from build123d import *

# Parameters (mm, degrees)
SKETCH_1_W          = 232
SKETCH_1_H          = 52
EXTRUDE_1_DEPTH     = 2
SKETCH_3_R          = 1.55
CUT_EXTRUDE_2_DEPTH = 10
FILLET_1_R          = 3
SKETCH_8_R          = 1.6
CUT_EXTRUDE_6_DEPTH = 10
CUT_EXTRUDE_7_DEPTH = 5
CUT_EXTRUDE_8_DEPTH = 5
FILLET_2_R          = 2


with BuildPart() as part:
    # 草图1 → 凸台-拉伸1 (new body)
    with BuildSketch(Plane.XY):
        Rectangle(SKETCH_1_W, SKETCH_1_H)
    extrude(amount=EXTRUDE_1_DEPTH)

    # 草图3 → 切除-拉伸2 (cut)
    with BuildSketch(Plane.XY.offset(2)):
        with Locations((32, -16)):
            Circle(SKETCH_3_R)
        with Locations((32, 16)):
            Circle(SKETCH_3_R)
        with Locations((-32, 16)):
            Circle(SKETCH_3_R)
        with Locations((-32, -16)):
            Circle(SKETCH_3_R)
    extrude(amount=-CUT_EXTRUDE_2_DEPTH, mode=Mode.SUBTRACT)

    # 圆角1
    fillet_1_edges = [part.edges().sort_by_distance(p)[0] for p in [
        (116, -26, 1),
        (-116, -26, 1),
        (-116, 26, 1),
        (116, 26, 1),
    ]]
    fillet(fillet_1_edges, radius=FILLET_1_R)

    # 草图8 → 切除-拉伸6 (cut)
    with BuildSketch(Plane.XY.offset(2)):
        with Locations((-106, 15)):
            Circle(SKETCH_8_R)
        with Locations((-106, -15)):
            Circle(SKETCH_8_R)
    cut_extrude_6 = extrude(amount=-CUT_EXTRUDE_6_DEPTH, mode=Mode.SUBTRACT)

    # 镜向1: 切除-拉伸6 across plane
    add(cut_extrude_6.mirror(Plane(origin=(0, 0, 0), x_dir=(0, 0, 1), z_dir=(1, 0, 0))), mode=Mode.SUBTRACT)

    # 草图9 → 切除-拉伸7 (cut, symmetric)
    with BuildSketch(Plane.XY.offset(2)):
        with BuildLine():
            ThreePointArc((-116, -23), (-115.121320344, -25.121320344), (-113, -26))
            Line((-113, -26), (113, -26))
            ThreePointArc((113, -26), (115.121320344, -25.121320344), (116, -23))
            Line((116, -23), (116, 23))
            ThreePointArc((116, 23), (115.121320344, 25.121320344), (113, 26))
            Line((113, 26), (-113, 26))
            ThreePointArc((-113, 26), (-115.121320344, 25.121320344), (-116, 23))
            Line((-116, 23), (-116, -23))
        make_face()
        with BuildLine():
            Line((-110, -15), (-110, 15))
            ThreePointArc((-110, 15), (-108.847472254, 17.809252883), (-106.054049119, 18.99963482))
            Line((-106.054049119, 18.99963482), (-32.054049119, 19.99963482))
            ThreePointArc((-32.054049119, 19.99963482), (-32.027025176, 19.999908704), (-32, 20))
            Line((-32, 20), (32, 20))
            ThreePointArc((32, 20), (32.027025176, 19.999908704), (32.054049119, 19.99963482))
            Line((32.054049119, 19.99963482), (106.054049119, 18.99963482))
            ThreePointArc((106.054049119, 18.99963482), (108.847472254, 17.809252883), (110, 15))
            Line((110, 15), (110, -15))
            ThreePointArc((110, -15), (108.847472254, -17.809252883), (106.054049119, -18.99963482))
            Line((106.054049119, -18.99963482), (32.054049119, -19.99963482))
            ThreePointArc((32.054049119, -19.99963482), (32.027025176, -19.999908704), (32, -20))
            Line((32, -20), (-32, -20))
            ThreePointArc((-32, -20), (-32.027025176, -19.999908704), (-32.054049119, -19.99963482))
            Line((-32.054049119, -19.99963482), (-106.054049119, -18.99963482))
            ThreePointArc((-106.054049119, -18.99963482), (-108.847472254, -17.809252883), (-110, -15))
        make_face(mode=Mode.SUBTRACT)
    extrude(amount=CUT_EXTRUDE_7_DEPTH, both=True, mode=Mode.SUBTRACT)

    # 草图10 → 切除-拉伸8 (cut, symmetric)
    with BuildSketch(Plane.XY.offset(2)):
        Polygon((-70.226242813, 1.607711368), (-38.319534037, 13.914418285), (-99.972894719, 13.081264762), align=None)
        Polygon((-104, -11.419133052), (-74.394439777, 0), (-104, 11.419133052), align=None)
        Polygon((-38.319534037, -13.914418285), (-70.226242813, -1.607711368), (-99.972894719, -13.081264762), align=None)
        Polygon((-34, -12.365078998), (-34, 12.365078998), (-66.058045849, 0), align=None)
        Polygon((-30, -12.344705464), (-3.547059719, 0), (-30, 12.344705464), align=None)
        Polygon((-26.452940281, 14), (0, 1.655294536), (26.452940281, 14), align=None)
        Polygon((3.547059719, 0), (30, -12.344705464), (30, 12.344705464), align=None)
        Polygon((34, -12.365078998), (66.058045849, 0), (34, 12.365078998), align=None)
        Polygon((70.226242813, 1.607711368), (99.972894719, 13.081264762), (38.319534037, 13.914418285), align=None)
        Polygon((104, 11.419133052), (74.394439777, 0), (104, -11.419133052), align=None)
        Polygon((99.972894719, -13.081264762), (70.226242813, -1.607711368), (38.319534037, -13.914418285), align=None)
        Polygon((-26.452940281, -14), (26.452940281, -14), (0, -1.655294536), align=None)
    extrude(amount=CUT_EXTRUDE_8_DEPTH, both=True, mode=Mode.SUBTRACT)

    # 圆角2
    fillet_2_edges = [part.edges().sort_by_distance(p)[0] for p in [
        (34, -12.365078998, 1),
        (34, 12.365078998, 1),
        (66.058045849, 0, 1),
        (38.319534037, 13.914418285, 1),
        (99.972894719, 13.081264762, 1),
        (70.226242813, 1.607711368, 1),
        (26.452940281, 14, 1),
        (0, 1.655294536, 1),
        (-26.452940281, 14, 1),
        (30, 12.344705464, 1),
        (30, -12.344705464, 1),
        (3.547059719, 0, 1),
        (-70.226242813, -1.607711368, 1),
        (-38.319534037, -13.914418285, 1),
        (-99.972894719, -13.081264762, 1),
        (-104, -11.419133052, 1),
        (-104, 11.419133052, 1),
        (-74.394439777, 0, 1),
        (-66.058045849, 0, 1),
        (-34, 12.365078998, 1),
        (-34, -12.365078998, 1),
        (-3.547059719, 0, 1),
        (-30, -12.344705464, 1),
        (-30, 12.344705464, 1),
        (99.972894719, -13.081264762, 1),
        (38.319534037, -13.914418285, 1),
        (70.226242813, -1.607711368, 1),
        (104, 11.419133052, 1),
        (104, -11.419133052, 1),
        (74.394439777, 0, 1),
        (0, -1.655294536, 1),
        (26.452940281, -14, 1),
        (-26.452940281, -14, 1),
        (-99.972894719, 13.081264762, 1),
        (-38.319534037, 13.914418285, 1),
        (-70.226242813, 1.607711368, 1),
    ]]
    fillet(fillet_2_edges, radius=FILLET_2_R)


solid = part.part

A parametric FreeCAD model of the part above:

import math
import FreeCAD as App
import Part
import Sketcher

V = App.Vector
Q = App.Units.Quantity


def edges_at(feature, points):
    """Names of the edges that pass closest to the given points."""
    edges = feature.Shape.Edges
    near = lambda p: min(range(len(edges)), key=lambda i: edges[i].distToShape(Part.Vertex(*p))[0])
    return sorted({f"Edge{near(p) + 1}" for p in points})

doc = App.newDocument("Part")
params = doc.addObject("Spreadsheet::Sheet", "Params")
for row, (alias, value) in enumerate([
    ("sketch1_width", "232 mm"),
    ("sketch1_height", "52 mm"),
    ("pad1_length", "2 mm"),
    ("sketch2_diameter", "3.1 mm"),
    ("pocket1_length", "10 mm"),
    ("fillet_radius", "3 mm"),
    ("sketch3_diameter", "3.2 mm"),
    ("pocket2_length", "10 mm"),
    ("sketch4_radius", "3 mm"),
    ("sketch4_radius2", "4 mm"),
    ("sketch4_width", "226 mm"),
    ("sketch4_width2", "64 mm"),
    ("sketch4_height", "46 mm"),
    ("pocket3_length", "10 mm"),
    ("pocket4_length", "10 mm"),
    ("fillet2_radius", "2 mm"),
], start=1):
    params.set(f"A{row}", alias)
    params.set(f"B{row}", "=" + value)
    params.setAlias(f"B{row}", alias)

body = doc.addObject("PartDesign::Body", "Body")

# Sketch on XY plane
sketch1 = body.newObject("Sketcher::SketchObject", "Sketch")
sketch1.AttachmentSupport = (doc.getObject("XY_Plane"), [""])
sketch1.MapMode = "FlatFace"
sketch1.addGeometry(Part.LineSegment(V(-116, 26, 0), V(-116, -26, 0)), False)
sketch1.addGeometry(Part.LineSegment(V(-116, -26, 0), V(116, -26, 0)), False)
sketch1.addGeometry(Part.LineSegment(V(116, -26, 0), V(116, 26, 0)), False)
sketch1.addGeometry(Part.LineSegment(V(116, 26, 0), V(-116, 26, 0)), False)
sketch1.addConstraint(Sketcher.Constraint("Coincident", 0, 2, 1, 1))
sketch1.addConstraint(Sketcher.Constraint("Coincident", 1, 2, 2, 1))
sketch1.addConstraint(Sketcher.Constraint("Coincident", 2, 2, 3, 1))
sketch1.addConstraint(Sketcher.Constraint("Coincident", 3, 2, 0, 1))
sketch1.addConstraint(Sketcher.Constraint("Vertical", 0))
sketch1.addConstraint(Sketcher.Constraint("Horizontal", 1))
sketch1.addConstraint(Sketcher.Constraint("Vertical", 2))
sketch1.addConstraint(Sketcher.Constraint("Horizontal", 3))
sketch1.addConstraint(Sketcher.Constraint("Symmetric", 0, 2, 2, 2, -1, 1))
sketch1.addConstraint(Sketcher.Constraint("DistanceX", 1, 1, 1, 2, Q("232 mm")))
sketch1.addConstraint(Sketcher.Constraint("DistanceY", 0, 2, 0, 1, Q("52 mm")))
sketch1.setExpression("Constraints[9]", "Params.sketch1_width")
sketch1.setExpression("Constraints[10]", "Params.sketch1_height")
pad1 = body.newObject("PartDesign::Pad", "Pad")
pad1.Profile = sketch1
pad1.setExpression("Length", "Params.pad1_length")

# Sketch on XY plane
sketch2 = body.newObject("Sketcher::SketchObject", "Sketch001")
sketch2.AttachmentSupport = (doc.getObject("XY_Plane"), [""])
sketch2.MapMode = "FlatFace"
sketch2.AttachmentOffset = App.Placement(V(0, 0, 2), App.Rotation())
sketch2.addGeometry(Part.Circle(V(32, -16, 0), V(0, 0, 1), 1.6), False)
sketch2.addGeometry(Part.Circle(V(32, 16, 0), V(0, 0, 1), 1.6), False)
sketch2.addGeometry(Part.Circle(V(-32, 16, 0), V(0, 0, 1), 1.6), False)
sketch2.addGeometry(Part.Circle(V(-32, -16, 0), V(0, 0, 1), 1.6), False)
sketch2.addConstraint(Sketcher.Constraint("Equal", 0, 1))
sketch2.addConstraint(Sketcher.Constraint("Equal", 1, 2))
sketch2.addConstraint(Sketcher.Constraint("Equal", 2, 3))
sketch2.addConstraint(Sketcher.Constraint("Symmetric", 0, 3, 2, 3, -1, 1))
sketch2.addConstraint(Sketcher.Constraint("Symmetric", 1, 3, 3, 3, -1, 1))
sketch2.addConstraint(Sketcher.Constraint("Symmetric", 1, 3, 2, 3, -2))
sketch2.addConstraint(Sketcher.Constraint("Diameter", 0, Q("3.1 mm")))
sketch2.addConstraint(Sketcher.Constraint("DistanceX", -1, 1, 0, 3, Q("32 mm")))
sketch2.addConstraint(Sketcher.Constraint("DistanceY", 0, 3, -1, 1, Q("16 mm")))
sketch2.setExpression("Constraints[6]", "Params.sketch2_diameter")
pocket1 = body.newObject("PartDesign::Pocket", "Pocket")
pocket1.Profile = sketch2
pocket1.setExpression("Length", "Params.pocket1_length")
doc.recompute()

fillet = body.newObject("PartDesign::Fillet", "Fillet")
fillet.Base = (pocket1, edges_at(pocket1, [
    (116, -26, 1),
    (-116, -26, 1),
    (-116, 26, 1),
    (116, 26, 1),
]))
fillet.setExpression("Radius", "Params.fillet_radius")

# Sketch on XY plane
sketch3 = body.newObject("Sketcher::SketchObject", "Sketch002")
sketch3.AttachmentSupport = (doc.getObject("XY_Plane"), [""])
sketch3.MapMode = "FlatFace"
sketch3.AttachmentOffset = App.Placement(V(0, 0, 2), App.Rotation())
sketch3.addGeometry(Part.Circle(V(-106, 15, 0), V(0, 0, 1), 1.6), False)
sketch3.addGeometry(Part.Circle(V(-106, -15, 0), V(0, 0, 1), 1.6), False)
sketch3.addConstraint(Sketcher.Constraint("Equal", 0, 1))
sketch3.addConstraint(Sketcher.Constraint("Symmetric", 0, 3, 1, 3, -1))
sketch3.addConstraint(Sketcher.Constraint("Diameter", 0, Q("3.2 mm")))
sketch3.addConstraint(Sketcher.Constraint("DistanceX", 0, 3, -1, 1, Q("106 mm")))
sketch3.addConstraint(Sketcher.Constraint("DistanceY", -1, 1, 0, 3, Q("15 mm")))
sketch3.setExpression("Constraints[2]", "Params.sketch3_diameter")
pocket2 = body.newObject("PartDesign::Pocket", "Pocket001")
pocket2.Profile = sketch3
pocket2.setExpression("Length", "Params.pocket2_length")
doc.recompute()

mirrored = body.newObject("PartDesign::Mirrored", "Mirrored")
mirrored.Originals = [pocket2]
mirrored.MirrorPlane = (doc.getObject("YZ_Plane"), [""])
body.Tip = mirrored

# Sketch on XY plane
sketch4 = body.newObject("Sketcher::SketchObject", "Sketch003")
sketch4.AttachmentSupport = (doc.getObject("XY_Plane"), [""])
sketch4.MapMode = "FlatFace"
sketch4.AttachmentOffset = App.Placement(V(0, 0, 2), App.Rotation())
sketch4.addGeometry(Part.ArcOfCircle(Part.Circle(V(-113, -23, 0), V(0, 0, 1), 3), math.radians(180), math.radians(270)), False)
sketch4.addGeometry(Part.LineSegment(V(-113, -26, 0), V(113, -26, 0)), False)
sketch4.addGeometry(Part.ArcOfCircle(Part.Circle(V(113, -23, 0), V(0, 0, 1), 3), math.radians(-90), math.radians(0)), False)
sketch4.addGeometry(Part.LineSegment(V(116, -23, 0), V(116, 23, 0)), False)
sketch4.addGeometry(Part.ArcOfCircle(Part.Circle(V(113, 23, 0), V(0, 0, 1), 3), math.radians(0), math.radians(90)), False)
sketch4.addGeometry(Part.LineSegment(V(113, 26, 0), V(-113, 26, 0)), False)
sketch4.addGeometry(Part.ArcOfCircle(Part.Circle(V(-113, 23, 0), V(0, 0, 1), 3), math.radians(90), math.radians(180)), False)
sketch4.addGeometry(Part.LineSegment(V(-116, 23, 0), V(-116, -23, 0)), False)
sketch4.addGeometry(Part.ArcOfCircle(Part.Circle(V(-106, -15, 0), V(0, 0, 1), 4), math.radians(-180), math.radians(-91)), False)
sketch4.addGeometry(Part.LineSegment(V(-110, -15, 0), V(-110, 15, 0)), False)
sketch4.addGeometry(Part.ArcOfCircle(Part.Circle(V(-106, 15, 0), V(0, 0, 1), 4), math.radians(91), math.radians(180)), False)
sketch4.addGeometry(Part.LineSegment(V(-106.05, 19, 0), V(-32.05, 20, 0)), False)
sketch4.addGeometry(Part.ArcOfCircle(Part.Circle(V(-32, 16, 0), V(0, 0, 1), 4), math.radians(90), math.radians(90.77)), False)
sketch4.addGeometry(Part.LineSegment(V(-32, 20, 0), V(32, 20, 0)), False)
sketch4.addGeometry(Part.ArcOfCircle(Part.Circle(V(32, 16, 0), V(0, 0, 1), 4), math.radians(89.23), math.radians(90)), False)
sketch4.addGeometry(Part.LineSegment(V(32.05, 20, 0), V(106.05, 19, 0)), False)
sketch4.addGeometry(Part.ArcOfCircle(Part.Circle(V(106, 15, 0), V(0, 0, 1), 4), math.radians(0), math.radians(89)), False)
sketch4.addGeometry(Part.LineSegment(V(110, 15, 0), V(110, -15, 0)), False)
sketch4.addGeometry(Part.ArcOfCircle(Part.Circle(V(106, -15, 0), V(0, 0, 1), 4), math.radians(-89), math.radians(0)), False)
sketch4.addGeometry(Part.LineSegment(V(106.05, -19, 0), V(32.05, -20, 0)), False)
sketch4.addGeometry(Part.ArcOfCircle(Part.Circle(V(32, -16, 0), V(0, 0, 1), 4), math.radians(-90), math.radians(-89.23)), False)
sketch4.addGeometry(Part.LineSegment(V(32, -20, 0), V(-32, -20, 0)), False)
sketch4.addGeometry(Part.ArcOfCircle(Part.Circle(V(-32, -16, 0), V(0, 0, 1), 4), math.radians(-90.77), math.radians(-90)), False)
sketch4.addGeometry(Part.LineSegment(V(-32.05, -20, 0), V(-106.05, -19, 0)), False)
sketch4.addConstraint(Sketcher.Constraint("Tangent", 0, 2, 1, 1))
sketch4.addConstraint(Sketcher.Constraint("Tangent", 1, 2, 2, 1))
sketch4.addConstraint(Sketcher.Constraint("Tangent", 2, 2, 3, 1))
sketch4.addConstraint(Sketcher.Constraint("Tangent", 3, 2, 4, 1))
sketch4.addConstraint(Sketcher.Constraint("Tangent", 4, 2, 5, 1))
sketch4.addConstraint(Sketcher.Constraint("Tangent", 5, 2, 6, 1))
sketch4.addConstraint(Sketcher.Constraint("Tangent", 6, 2, 7, 1))
sketch4.addConstraint(Sketcher.Constraint("Tangent", 7, 2, 0, 1))
sketch4.addConstraint(Sketcher.Constraint("Tangent", 8, 1, 9, 1))
sketch4.addConstraint(Sketcher.Constraint("Tangent", 9, 2, 10, 2))
sketch4.addConstraint(Sketcher.Constraint("Tangent", 10, 1, 11, 1))
sketch4.addConstraint(Sketcher.Constraint("Tangent", 11, 2, 12, 2))
sketch4.addConstraint(Sketcher.Constraint("Tangent", 12, 1, 13, 1))
sketch4.addConstraint(Sketcher.Constraint("Tangent", 13, 2, 14, 2))
sketch4.addConstraint(Sketcher.Constraint("Tangent", 14, 1, 15, 1))
sketch4.addConstraint(Sketcher.Constraint("Tangent", 15, 2, 16, 2))
sketch4.addConstraint(Sketcher.Constraint("Tangent", 16, 1, 17, 1))
sketch4.addConstraint(Sketcher.Constraint("Tangent", 17, 2, 18, 2))
sketch4.addConstraint(Sketcher.Constraint("Tangent", 18, 1, 19, 1))
sketch4.addConstraint(Sketcher.Constraint("Tangent", 19, 2, 20, 2))
sketch4.addConstraint(Sketcher.Constraint("Tangent", 20, 1, 21, 1))
sketch4.addConstraint(Sketcher.Constraint("Tangent", 21, 2, 22, 2))
sketch4.addConstraint(Sketcher.Constraint("Tangent", 22, 1, 23, 1))
sketch4.addConstraint(Sketcher.Constraint("Tangent", 23, 2, 8, 2))
sketch4.addConstraint(Sketcher.Constraint("Horizontal", 1))
sketch4.addConstraint(Sketcher.Constraint("Vertical", 3))
sketch4.addConstraint(Sketcher.Constraint("Horizontal", 5))
sketch4.addConstraint(Sketcher.Constraint("Vertical", 7))
sketch4.addConstraint(Sketcher.Constraint("Vertical", 9))
sketch4.addConstraint(Sketcher.Constraint("Horizontal", 13))
sketch4.addConstraint(Sketcher.Constraint("Vertical", 17))
sketch4.addConstraint(Sketcher.Constraint("Horizontal", 21))
sketch4.addConstraint(Sketcher.Constraint("Equal", 0, 2))
sketch4.addConstraint(Sketcher.Constraint("Equal", 2, 4))
sketch4.addConstraint(Sketcher.Constraint("Equal", 4, 6))
sketch4.addConstraint(Sketcher.Constraint("Equal", 8, 10))
sketch4.addConstraint(Sketcher.Constraint("Equal", 10, 12))
sketch4.addConstraint(Sketcher.Constraint("Equal", 12, 14))
sketch4.addConstraint(Sketcher.Constraint("Equal", 14, 16))
sketch4.addConstraint(Sketcher.Constraint("Equal", 16, 18))
sketch4.addConstraint(Sketcher.Constraint("Equal", 18, 20))
sketch4.addConstraint(Sketcher.Constraint("Equal", 20, 22))
sketch4.addConstraint(Sketcher.Constraint("Symmetric", 0, 3, 4, 3, -1, 1))
sketch4.addConstraint(Sketcher.Constraint("Symmetric", 8, 3, 16, 3, -1, 1))
sketch4.addConstraint(Sketcher.Constraint("Symmetric", 12, 3, 20, 3, -1, 1))
sketch4.addConstraint(Sketcher.Constraint("Symmetric", 10, 1, 15, 2, -2))
sketch4.addConstraint(Sketcher.Constraint("Symmetric", 18, 1, 23, 2, -2))
sketch4.addConstraint(Sketcher.Constraint("Radius", 0, Q("3 mm")))
sketch4.addConstraint(Sketcher.Constraint("Radius", 8, Q("4 mm")))
sketch4.addConstraint(Sketcher.Constraint("DistanceX", 1, 1, 1, 2, Q("226 mm")))
sketch4.addConstraint(Sketcher.Constraint("DistanceX", 13, 1, 13, 2, Q("64 mm")))
sketch4.addConstraint(Sketcher.Constraint("DistanceY", 3, 1, 3, 2, Q("46 mm")))
sketch4.addConstraint(Sketcher.Constraint("DistanceY", 9, 1, 9, 2, Q("30 mm")))
sketch4.addConstraint(Sketcher.Constraint("DistanceX", 8, 3, -1, 1, Q("106 mm")))
sketch4.addConstraint(Sketcher.Constraint("DistanceY", -1, 1, 12, 3, Q("16.000001 mm")))
sketch4.setExpression("Constraints[47]", "Params.sketch4_radius")
sketch4.setExpression("Constraints[48]", "Params.sketch4_radius2")
sketch4.setExpression("Constraints[49]", "Params.sketch4_width")
sketch4.setExpression("Constraints[50]", "Params.sketch4_width2")
sketch4.setExpression("Constraints[51]", "Params.sketch4_height")
pocket3 = body.newObject("PartDesign::Pocket", "Pocket002")
pocket3.Profile = sketch4
pocket3.setExpression("Length", "Params.pocket3_length")
pocket3.Midplane = True

# Sketch on XY plane
sketch5 = body.newObject("Sketcher::SketchObject", "Sketch004")
sketch5.AttachmentSupport = (doc.getObject("XY_Plane"), [""])
sketch5.MapMode = "FlatFace"
sketch5.AttachmentOffset = App.Placement(V(0, 0, 2), App.Rotation())
sketch5.addGeometry(Part.LineSegment(V(-70, 2, 0), V(-38, 14, 0)), False)
sketch5.addGeometry(Part.LineSegment(V(-38, 14, 0), V(-100, 13, 0)), False)
sketch5.addGeometry(Part.LineSegment(V(-100, 13, 0), V(-70, 2, 0)), False)
sketch5.addGeometry(Part.LineSegment(V(-104, -11, 0), V(-74, 0, 0)), False)
sketch5.addGeometry(Part.LineSegment(V(-74, 0, 0), V(-104, 11, 0)), False)
sketch5.addGeometry(Part.LineSegment(V(-104, 11, 0), V(-104, -11, 0)), False)
sketch5.addGeometry(Part.LineSegment(V(-38, -14, 0), V(-70, -2, 0)), False)
sketch5.addGeometry(Part.LineSegment(V(-70, -2, 0), V(-100, -13, 0)), False)
sketch5.addGeometry(Part.LineSegment(V(-100, -13, 0), V(-38, -14, 0)), False)
sketch5.addGeometry(Part.LineSegment(V(-34, -12, 0), V(-34, 12, 0)), False)
sketch5.addGeometry(Part.LineSegment(V(-34, 12, 0), V(-66, 0, 0)), False)
sketch5.addGeometry(Part.LineSegment(V(-66, 0, 0), V(-34, -12, 0)), False)
sketch5.addGeometry(Part.LineSegment(V(-30, -12, 0), V(-4, 0, 0)), False)
sketch5.addGeometry(Part.LineSegment(V(-4, 0, 0), V(-30, 12, 0)), False)
sketch5.addGeometry(Part.LineSegment(V(-30, 12, 0), V(-30, -12, 0)), False)
sketch5.addGeometry(Part.LineSegment(V(-26, 14, 0), V(0, 2, 0)), False)
sketch5.addGeometry(Part.LineSegment(V(0, 2, 0), V(26, 14, 0)), False)
sketch5.addGeometry(Part.LineSegment(V(26, 14, 0), V(-26, 14, 0)), False)
sketch5.addGeometry(Part.LineSegment(V(4, 0, 0), V(30, -12, 0)), False)
sketch5.addGeometry(Part.LineSegment(V(30, -12, 0), V(30, 12, 0)), False)
sketch5.addGeometry(Part.LineSegment(V(30, 12, 0), V(4, 0, 0)), False)
sketch5.addGeometry(Part.LineSegment(V(34, -12, 0), V(66, 0, 0)), False)
sketch5.addGeometry(Part.LineSegment(V(66, 0, 0), V(34, 12, 0)), False)
sketch5.addGeometry(Part.LineSegment(V(34, 12, 0), V(34, -12, 0)), False)
sketch5.addGeometry(Part.LineSegment(V(70, 2, 0), V(100, 13, 0)), False)
sketch5.addGeometry(Part.LineSegment(V(100, 13, 0), V(38, 14, 0)), False)
sketch5.addGeometry(Part.LineSegment(V(38, 14, 0), V(70, 2, 0)), False)
sketch5.addGeometry(Part.LineSegment(V(104, 11, 0), V(74, 0, 0)), False)
sketch5.addGeometry(Part.LineSegment(V(74, 0, 0), V(104, -11, 0)), False)
sketch5.addGeometry(Part.LineSegment(V(104, -11, 0), V(104, 11, 0)), False)
sketch5.addGeometry(Part.LineSegment(V(100, -13, 0), V(70, -2, 0)), False)
sketch5.addGeometry(Part.LineSegment(V(70, -2, 0), V(38, -14, 0)), False)
sketch5.addGeometry(Part.LineSegment(V(38, -14, 0), V(100, -13, 0)), False)
sketch5.addGeometry(Part.LineSegment(V(-26, -14, 0), V(26, -14, 0)), False)
sketch5.addGeometry(Part.LineSegment(V(26, -14, 0), V(0, -2, 0)), False)
sketch5.addGeometry(Part.LineSegment(V(0, -2, 0), V(-26, -14, 0)), False)
sketch5.addConstraint(Sketcher.Constraint("Coincident", 0, 2, 1, 1))
sketch5.addConstraint(Sketcher.Constraint("Coincident", 1, 2, 2, 1))
sketch5.addConstraint(Sketcher.Constraint("Coincident", 2, 2, 0, 1))
sketch5.addConstraint(Sketcher.Constraint("Coincident", 3, 2, 4, 1))
sketch5.addConstraint(Sketcher.Constraint("Coincident", 4, 2, 5, 1))
sketch5.addConstraint(Sketcher.Constraint("Coincident", 5, 2, 3, 1))
sketch5.addConstraint(Sketcher.Constraint("Coincident", 6, 2, 7, 1))
sketch5.addConstraint(Sketcher.Constraint("Coincident", 7, 2, 8, 1))
sketch5.addConstraint(Sketcher.Constraint("Coincident", 8, 2, 6, 1))
sketch5.addConstraint(Sketcher.Constraint("Coincident", 9, 2, 10, 1))
sketch5.addConstraint(Sketcher.Constraint("Coincident", 10, 2, 11, 1))
sketch5.addConstraint(Sketcher.Constraint("Coincident", 11, 2, 9, 1))
sketch5.addConstraint(Sketcher.Constraint("Coincident", 12, 2, 13, 1))
sketch5.addConstraint(Sketcher.Constraint("Coincident", 13, 2, 14, 1))
sketch5.addConstraint(Sketcher.Constraint("Coincident", 14, 2, 12, 1))
sketch5.addConstraint(Sketcher.Constraint("Coincident", 15, 2, 16, 1))
sketch5.addConstraint(Sketcher.Constraint("Coincident", 16, 2, 17, 1))
sketch5.addConstraint(Sketcher.Constraint("Coincident", 17, 2, 15, 1))
sketch5.addConstraint(Sketcher.Constraint("Coincident", 18, 2, 19, 1))
sketch5.addConstraint(Sketcher.Constraint("Coincident", 19, 2, 20, 1))
sketch5.addConstraint(Sketcher.Constraint("Coincident", 20, 2, 18, 1))
sketch5.addConstraint(Sketcher.Constraint("Coincident", 21, 2, 22, 1))
sketch5.addConstraint(Sketcher.Constraint("Coincident", 22, 2, 23, 1))
sketch5.addConstraint(Sketcher.Constraint("Coincident", 23, 2, 21, 1))
sketch5.addConstraint(Sketcher.Constraint("Coincident", 24, 2, 25, 1))
sketch5.addConstraint(Sketcher.Constraint("Coincident", 25, 2, 26, 1))
sketch5.addConstraint(Sketcher.Constraint("Coincident", 26, 2, 24, 1))
sketch5.addConstraint(Sketcher.Constraint("Coincident", 27, 2, 28, 1))
sketch5.addConstraint(Sketcher.Constraint("Coincident", 28, 2, 29, 1))
sketch5.addConstraint(Sketcher.Constraint("Coincident", 29, 2, 27, 1))
sketch5.addConstraint(Sketcher.Constraint("Coincident", 30, 2, 31, 1))
sketch5.addConstraint(Sketcher.Constraint("Coincident", 31, 2, 32, 1))
sketch5.addConstraint(Sketcher.Constraint("Coincident", 32, 2, 30, 1))
sketch5.addConstraint(Sketcher.Constraint("Coincident", 33, 2, 34, 1))
sketch5.addConstraint(Sketcher.Constraint("Coincident", 34, 2, 35, 1))
sketch5.addConstraint(Sketcher.Constraint("Coincident", 35, 2, 33, 1))
sketch5.addConstraint(Sketcher.Constraint("Vertical", 5))
sketch5.addConstraint(Sketcher.Constraint("Vertical", 9))
sketch5.addConstraint(Sketcher.Constraint("Vertical", 14))
sketch5.addConstraint(Sketcher.Constraint("Horizontal", 17))
sketch5.addConstraint(Sketcher.Constraint("Vertical", 19))
sketch5.addConstraint(Sketcher.Constraint("Vertical", 23))
sketch5.addConstraint(Sketcher.Constraint("Vertical", 29))
sketch5.addConstraint(Sketcher.Constraint("Horizontal", 33))
sketch5.addConstraint(Sketcher.Constraint("Symmetric", 13, 2, 18, 2, -1, 1))
sketch5.addConstraint(Sketcher.Constraint("Symmetric", 12, 2, 20, 2, -1, 1))
sketch5.addConstraint(Sketcher.Constraint("Symmetric", 10, 2, 21, 2, -1, 1))
sketch5.addConstraint(Sketcher.Constraint("Symmetric", 11, 2, 22, 2, -1, 1))
sketch5.addConstraint(Sketcher.Constraint("Symmetric", 7, 2, 24, 2, -1, 1))
sketch5.addConstraint(Sketcher.Constraint("Symmetric", 8, 2, 25, 2, -1, 1))
sketch5.addConstraint(Sketcher.Constraint("Symmetric", 6, 2, 26, 2, -1, 1))
sketch5.addConstraint(Sketcher.Constraint("Symmetric", 3, 2, 27, 2, -1, 1))
sketch5.addConstraint(Sketcher.Constraint("Symmetric", 4, 2, 28, 2, -1, 1))
sketch5.addConstraint(Sketcher.Constraint("Symmetric", 2, 2, 30, 2, -1, 1))
sketch5.addConstraint(Sketcher.Constraint("Symmetric", 0, 2, 31, 2, -1, 1))
sketch5.addConstraint(Sketcher.Constraint("Symmetric", 1, 2, 32, 2, -1, 1))
sketch5.addConstraint(Sketcher.Constraint("Symmetric", 17, 2, 33, 2, -1, 1))
sketch5.addConstraint(Sketcher.Constraint("Symmetric", 15, 2, 34, 2, -1, 1))
sketch5.addConstraint(Sketcher.Constraint("Symmetric", 1, 2, 24, 2, -2))
sketch5.addConstraint(Sketcher.Constraint("Symmetric", 0, 2, 25, 2, -2))
sketch5.addConstraint(Sketcher.Constraint("Symmetric", 2, 2, 26, 2, -2))
sketch5.addConstraint(Sketcher.Constraint("PointOnObject", 3, 2, -1))
sketch5.addConstraint(Sketcher.Constraint("PointOnObject", 10, 2, -1))
sketch5.addConstraint(Sketcher.Constraint("PointOnObject", 12, 2, -1))
sketch5.addConstraint(Sketcher.Constraint("PointOnObject", 15, 2, -2))
sketch5.addConstraint(Sketcher.Constraint("Parallel", 0, 3))
sketch5.addConstraint(Sketcher.Constraint("Parallel", 2, 4))
sketch5.addConstraint(Sketcher.Constraint("Parallel", 4, 6))
sketch5.addConstraint(Sketcher.Constraint("Parallel", 7, 10))
sketch5.addConstraint(Sketcher.Constraint("Parallel", 6, 11))
sketch5.addConstraint(Sketcher.Constraint("Parallel", 13, 15))
sketch5.addConstraint(Sketcher.Constraint("Parallel", 12, 16))
sketch5.addConstraint(Sketcher.Constraint("Parallel", 16, 20))
sketch5.addConstraint(Sketcher.Constraint("Parallel", 10, 21))
sketch5.addConstraint(Sketcher.Constraint("Parallel", 24, 27))
sketch5.addConstraint(Sketcher.Constraint("Parallel", 20, 35))
sketch5.addConstraint(Sketcher.Constraint("Horizontal", 14, 2, 18, 2))
sketch5.addConstraint(Sketcher.Constraint("Equal", 13, 15))
sketch5.addConstraint(Sketcher.Constraint("DistanceX", 4, 2, -1, 1, Q("104 mm")))
sketch5.addConstraint(Sketcher.Constraint("DistanceX", 9, 2, -1, 1, Q("34 mm")))
sketch5.addConstraint(Sketcher.Constraint("DistanceX", 13, 2, -1, 1, Q("30 mm")))
sketch5.addConstraint(Sketcher.Constraint("DistanceY", -1, 1, 16, 2, Q("14 mm")))
sketch5.addConstraint(Sketcher.Constraint("DistanceX", 17, 2, 17, 1, Q("52.905881 mm")))
sketch5.addConstraint(Sketcher.Constraint("DistanceY", 14, 2, 14, 1, Q("24.689411 mm")))
sketch5.addConstraint(Sketcher.Constraint("Distance", 1, Q("61.65899 mm")))
sketch5.addConstraint(Sketcher.Constraint("DistanceY", 5, 2, 5, 1, Q("22.838266 mm")))
sketch5.addConstraint(Sketcher.Constraint("DistanceY", 9, 1, 9, 2, Q("24.730158 mm")))
sketch5.addConstraint(Sketcher.Constraint("DistanceY", -1, 1, 0, 2, Q("13.914418 mm")))
sketch5.addConstraint(Sketcher.Constraint("DistanceY", -1, 1, 2, 2, Q("1.607711 mm")))
sketch5.addConstraint(Sketcher.Constraint("DistanceX", 3, 2, -1, 1, Q("74.39444 mm")))
sketch5.addConstraint(Sketcher.Constraint("DistanceX", 10, 2, 0, 2, Q("27.738512 mm")))
pocket4 = body.newObject("PartDesign::Pocket", "Pocket003")
pocket4.Profile = sketch5
pocket4.setExpression("Length", "Params.pocket4_length")
pocket4.Midplane = True
doc.recompute()

fillet2 = body.newObject("PartDesign::Fillet", "Fillet001")
fillet2.Base = (pocket4, edges_at(pocket4, [
    (34, -12.365, 1),
    (34, 12.365, 1),
    (66.058, 0, 1),
    (38.32, 13.914, 1),
    (99.973, 13.081, 1),
    (70.226, 1.608, 1),
    (26.453, 14, 1),
    (0, 1.655, 1),
    (-26.453, 14, 1),
    (30, 12.345, 1),
    (30, -12.345, 1),
    (3.547, 0, 1),
    (-70.226, -1.608, 1),
    (-38.32, -13.914, 1),
    (-99.973, -13.081, 1),
    (-104, -11.419, 1),
    (-104, 11.419, 1),
    (-74.394, 0, 1),
    (-66.058, 0, 1),
    (-34, 12.365, 1),
    (-34, -12.365, 1),
    (-3.547, 0, 1),
    (-30, -12.345, 1),
    (-30, 12.345, 1),
    (99.973, -13.081, 1),
    (38.32, -13.914, 1),
    (70.226, -1.608, 1),
    (104, 11.419, 1),
    (104, -11.419, 1),
    (74.394, 0, 1),
    (0, -1.655, 1),
    (26.453, -14, 1),
    (-26.453, -14, 1),
    (-99.973, 13.081, 1),
    (-38.32, 13.914, 1),
    (-70.226, 1.608, 1),
]))
fillet2.setExpression("Radius", "Params.fillet2_radius")

doc.recompute()
